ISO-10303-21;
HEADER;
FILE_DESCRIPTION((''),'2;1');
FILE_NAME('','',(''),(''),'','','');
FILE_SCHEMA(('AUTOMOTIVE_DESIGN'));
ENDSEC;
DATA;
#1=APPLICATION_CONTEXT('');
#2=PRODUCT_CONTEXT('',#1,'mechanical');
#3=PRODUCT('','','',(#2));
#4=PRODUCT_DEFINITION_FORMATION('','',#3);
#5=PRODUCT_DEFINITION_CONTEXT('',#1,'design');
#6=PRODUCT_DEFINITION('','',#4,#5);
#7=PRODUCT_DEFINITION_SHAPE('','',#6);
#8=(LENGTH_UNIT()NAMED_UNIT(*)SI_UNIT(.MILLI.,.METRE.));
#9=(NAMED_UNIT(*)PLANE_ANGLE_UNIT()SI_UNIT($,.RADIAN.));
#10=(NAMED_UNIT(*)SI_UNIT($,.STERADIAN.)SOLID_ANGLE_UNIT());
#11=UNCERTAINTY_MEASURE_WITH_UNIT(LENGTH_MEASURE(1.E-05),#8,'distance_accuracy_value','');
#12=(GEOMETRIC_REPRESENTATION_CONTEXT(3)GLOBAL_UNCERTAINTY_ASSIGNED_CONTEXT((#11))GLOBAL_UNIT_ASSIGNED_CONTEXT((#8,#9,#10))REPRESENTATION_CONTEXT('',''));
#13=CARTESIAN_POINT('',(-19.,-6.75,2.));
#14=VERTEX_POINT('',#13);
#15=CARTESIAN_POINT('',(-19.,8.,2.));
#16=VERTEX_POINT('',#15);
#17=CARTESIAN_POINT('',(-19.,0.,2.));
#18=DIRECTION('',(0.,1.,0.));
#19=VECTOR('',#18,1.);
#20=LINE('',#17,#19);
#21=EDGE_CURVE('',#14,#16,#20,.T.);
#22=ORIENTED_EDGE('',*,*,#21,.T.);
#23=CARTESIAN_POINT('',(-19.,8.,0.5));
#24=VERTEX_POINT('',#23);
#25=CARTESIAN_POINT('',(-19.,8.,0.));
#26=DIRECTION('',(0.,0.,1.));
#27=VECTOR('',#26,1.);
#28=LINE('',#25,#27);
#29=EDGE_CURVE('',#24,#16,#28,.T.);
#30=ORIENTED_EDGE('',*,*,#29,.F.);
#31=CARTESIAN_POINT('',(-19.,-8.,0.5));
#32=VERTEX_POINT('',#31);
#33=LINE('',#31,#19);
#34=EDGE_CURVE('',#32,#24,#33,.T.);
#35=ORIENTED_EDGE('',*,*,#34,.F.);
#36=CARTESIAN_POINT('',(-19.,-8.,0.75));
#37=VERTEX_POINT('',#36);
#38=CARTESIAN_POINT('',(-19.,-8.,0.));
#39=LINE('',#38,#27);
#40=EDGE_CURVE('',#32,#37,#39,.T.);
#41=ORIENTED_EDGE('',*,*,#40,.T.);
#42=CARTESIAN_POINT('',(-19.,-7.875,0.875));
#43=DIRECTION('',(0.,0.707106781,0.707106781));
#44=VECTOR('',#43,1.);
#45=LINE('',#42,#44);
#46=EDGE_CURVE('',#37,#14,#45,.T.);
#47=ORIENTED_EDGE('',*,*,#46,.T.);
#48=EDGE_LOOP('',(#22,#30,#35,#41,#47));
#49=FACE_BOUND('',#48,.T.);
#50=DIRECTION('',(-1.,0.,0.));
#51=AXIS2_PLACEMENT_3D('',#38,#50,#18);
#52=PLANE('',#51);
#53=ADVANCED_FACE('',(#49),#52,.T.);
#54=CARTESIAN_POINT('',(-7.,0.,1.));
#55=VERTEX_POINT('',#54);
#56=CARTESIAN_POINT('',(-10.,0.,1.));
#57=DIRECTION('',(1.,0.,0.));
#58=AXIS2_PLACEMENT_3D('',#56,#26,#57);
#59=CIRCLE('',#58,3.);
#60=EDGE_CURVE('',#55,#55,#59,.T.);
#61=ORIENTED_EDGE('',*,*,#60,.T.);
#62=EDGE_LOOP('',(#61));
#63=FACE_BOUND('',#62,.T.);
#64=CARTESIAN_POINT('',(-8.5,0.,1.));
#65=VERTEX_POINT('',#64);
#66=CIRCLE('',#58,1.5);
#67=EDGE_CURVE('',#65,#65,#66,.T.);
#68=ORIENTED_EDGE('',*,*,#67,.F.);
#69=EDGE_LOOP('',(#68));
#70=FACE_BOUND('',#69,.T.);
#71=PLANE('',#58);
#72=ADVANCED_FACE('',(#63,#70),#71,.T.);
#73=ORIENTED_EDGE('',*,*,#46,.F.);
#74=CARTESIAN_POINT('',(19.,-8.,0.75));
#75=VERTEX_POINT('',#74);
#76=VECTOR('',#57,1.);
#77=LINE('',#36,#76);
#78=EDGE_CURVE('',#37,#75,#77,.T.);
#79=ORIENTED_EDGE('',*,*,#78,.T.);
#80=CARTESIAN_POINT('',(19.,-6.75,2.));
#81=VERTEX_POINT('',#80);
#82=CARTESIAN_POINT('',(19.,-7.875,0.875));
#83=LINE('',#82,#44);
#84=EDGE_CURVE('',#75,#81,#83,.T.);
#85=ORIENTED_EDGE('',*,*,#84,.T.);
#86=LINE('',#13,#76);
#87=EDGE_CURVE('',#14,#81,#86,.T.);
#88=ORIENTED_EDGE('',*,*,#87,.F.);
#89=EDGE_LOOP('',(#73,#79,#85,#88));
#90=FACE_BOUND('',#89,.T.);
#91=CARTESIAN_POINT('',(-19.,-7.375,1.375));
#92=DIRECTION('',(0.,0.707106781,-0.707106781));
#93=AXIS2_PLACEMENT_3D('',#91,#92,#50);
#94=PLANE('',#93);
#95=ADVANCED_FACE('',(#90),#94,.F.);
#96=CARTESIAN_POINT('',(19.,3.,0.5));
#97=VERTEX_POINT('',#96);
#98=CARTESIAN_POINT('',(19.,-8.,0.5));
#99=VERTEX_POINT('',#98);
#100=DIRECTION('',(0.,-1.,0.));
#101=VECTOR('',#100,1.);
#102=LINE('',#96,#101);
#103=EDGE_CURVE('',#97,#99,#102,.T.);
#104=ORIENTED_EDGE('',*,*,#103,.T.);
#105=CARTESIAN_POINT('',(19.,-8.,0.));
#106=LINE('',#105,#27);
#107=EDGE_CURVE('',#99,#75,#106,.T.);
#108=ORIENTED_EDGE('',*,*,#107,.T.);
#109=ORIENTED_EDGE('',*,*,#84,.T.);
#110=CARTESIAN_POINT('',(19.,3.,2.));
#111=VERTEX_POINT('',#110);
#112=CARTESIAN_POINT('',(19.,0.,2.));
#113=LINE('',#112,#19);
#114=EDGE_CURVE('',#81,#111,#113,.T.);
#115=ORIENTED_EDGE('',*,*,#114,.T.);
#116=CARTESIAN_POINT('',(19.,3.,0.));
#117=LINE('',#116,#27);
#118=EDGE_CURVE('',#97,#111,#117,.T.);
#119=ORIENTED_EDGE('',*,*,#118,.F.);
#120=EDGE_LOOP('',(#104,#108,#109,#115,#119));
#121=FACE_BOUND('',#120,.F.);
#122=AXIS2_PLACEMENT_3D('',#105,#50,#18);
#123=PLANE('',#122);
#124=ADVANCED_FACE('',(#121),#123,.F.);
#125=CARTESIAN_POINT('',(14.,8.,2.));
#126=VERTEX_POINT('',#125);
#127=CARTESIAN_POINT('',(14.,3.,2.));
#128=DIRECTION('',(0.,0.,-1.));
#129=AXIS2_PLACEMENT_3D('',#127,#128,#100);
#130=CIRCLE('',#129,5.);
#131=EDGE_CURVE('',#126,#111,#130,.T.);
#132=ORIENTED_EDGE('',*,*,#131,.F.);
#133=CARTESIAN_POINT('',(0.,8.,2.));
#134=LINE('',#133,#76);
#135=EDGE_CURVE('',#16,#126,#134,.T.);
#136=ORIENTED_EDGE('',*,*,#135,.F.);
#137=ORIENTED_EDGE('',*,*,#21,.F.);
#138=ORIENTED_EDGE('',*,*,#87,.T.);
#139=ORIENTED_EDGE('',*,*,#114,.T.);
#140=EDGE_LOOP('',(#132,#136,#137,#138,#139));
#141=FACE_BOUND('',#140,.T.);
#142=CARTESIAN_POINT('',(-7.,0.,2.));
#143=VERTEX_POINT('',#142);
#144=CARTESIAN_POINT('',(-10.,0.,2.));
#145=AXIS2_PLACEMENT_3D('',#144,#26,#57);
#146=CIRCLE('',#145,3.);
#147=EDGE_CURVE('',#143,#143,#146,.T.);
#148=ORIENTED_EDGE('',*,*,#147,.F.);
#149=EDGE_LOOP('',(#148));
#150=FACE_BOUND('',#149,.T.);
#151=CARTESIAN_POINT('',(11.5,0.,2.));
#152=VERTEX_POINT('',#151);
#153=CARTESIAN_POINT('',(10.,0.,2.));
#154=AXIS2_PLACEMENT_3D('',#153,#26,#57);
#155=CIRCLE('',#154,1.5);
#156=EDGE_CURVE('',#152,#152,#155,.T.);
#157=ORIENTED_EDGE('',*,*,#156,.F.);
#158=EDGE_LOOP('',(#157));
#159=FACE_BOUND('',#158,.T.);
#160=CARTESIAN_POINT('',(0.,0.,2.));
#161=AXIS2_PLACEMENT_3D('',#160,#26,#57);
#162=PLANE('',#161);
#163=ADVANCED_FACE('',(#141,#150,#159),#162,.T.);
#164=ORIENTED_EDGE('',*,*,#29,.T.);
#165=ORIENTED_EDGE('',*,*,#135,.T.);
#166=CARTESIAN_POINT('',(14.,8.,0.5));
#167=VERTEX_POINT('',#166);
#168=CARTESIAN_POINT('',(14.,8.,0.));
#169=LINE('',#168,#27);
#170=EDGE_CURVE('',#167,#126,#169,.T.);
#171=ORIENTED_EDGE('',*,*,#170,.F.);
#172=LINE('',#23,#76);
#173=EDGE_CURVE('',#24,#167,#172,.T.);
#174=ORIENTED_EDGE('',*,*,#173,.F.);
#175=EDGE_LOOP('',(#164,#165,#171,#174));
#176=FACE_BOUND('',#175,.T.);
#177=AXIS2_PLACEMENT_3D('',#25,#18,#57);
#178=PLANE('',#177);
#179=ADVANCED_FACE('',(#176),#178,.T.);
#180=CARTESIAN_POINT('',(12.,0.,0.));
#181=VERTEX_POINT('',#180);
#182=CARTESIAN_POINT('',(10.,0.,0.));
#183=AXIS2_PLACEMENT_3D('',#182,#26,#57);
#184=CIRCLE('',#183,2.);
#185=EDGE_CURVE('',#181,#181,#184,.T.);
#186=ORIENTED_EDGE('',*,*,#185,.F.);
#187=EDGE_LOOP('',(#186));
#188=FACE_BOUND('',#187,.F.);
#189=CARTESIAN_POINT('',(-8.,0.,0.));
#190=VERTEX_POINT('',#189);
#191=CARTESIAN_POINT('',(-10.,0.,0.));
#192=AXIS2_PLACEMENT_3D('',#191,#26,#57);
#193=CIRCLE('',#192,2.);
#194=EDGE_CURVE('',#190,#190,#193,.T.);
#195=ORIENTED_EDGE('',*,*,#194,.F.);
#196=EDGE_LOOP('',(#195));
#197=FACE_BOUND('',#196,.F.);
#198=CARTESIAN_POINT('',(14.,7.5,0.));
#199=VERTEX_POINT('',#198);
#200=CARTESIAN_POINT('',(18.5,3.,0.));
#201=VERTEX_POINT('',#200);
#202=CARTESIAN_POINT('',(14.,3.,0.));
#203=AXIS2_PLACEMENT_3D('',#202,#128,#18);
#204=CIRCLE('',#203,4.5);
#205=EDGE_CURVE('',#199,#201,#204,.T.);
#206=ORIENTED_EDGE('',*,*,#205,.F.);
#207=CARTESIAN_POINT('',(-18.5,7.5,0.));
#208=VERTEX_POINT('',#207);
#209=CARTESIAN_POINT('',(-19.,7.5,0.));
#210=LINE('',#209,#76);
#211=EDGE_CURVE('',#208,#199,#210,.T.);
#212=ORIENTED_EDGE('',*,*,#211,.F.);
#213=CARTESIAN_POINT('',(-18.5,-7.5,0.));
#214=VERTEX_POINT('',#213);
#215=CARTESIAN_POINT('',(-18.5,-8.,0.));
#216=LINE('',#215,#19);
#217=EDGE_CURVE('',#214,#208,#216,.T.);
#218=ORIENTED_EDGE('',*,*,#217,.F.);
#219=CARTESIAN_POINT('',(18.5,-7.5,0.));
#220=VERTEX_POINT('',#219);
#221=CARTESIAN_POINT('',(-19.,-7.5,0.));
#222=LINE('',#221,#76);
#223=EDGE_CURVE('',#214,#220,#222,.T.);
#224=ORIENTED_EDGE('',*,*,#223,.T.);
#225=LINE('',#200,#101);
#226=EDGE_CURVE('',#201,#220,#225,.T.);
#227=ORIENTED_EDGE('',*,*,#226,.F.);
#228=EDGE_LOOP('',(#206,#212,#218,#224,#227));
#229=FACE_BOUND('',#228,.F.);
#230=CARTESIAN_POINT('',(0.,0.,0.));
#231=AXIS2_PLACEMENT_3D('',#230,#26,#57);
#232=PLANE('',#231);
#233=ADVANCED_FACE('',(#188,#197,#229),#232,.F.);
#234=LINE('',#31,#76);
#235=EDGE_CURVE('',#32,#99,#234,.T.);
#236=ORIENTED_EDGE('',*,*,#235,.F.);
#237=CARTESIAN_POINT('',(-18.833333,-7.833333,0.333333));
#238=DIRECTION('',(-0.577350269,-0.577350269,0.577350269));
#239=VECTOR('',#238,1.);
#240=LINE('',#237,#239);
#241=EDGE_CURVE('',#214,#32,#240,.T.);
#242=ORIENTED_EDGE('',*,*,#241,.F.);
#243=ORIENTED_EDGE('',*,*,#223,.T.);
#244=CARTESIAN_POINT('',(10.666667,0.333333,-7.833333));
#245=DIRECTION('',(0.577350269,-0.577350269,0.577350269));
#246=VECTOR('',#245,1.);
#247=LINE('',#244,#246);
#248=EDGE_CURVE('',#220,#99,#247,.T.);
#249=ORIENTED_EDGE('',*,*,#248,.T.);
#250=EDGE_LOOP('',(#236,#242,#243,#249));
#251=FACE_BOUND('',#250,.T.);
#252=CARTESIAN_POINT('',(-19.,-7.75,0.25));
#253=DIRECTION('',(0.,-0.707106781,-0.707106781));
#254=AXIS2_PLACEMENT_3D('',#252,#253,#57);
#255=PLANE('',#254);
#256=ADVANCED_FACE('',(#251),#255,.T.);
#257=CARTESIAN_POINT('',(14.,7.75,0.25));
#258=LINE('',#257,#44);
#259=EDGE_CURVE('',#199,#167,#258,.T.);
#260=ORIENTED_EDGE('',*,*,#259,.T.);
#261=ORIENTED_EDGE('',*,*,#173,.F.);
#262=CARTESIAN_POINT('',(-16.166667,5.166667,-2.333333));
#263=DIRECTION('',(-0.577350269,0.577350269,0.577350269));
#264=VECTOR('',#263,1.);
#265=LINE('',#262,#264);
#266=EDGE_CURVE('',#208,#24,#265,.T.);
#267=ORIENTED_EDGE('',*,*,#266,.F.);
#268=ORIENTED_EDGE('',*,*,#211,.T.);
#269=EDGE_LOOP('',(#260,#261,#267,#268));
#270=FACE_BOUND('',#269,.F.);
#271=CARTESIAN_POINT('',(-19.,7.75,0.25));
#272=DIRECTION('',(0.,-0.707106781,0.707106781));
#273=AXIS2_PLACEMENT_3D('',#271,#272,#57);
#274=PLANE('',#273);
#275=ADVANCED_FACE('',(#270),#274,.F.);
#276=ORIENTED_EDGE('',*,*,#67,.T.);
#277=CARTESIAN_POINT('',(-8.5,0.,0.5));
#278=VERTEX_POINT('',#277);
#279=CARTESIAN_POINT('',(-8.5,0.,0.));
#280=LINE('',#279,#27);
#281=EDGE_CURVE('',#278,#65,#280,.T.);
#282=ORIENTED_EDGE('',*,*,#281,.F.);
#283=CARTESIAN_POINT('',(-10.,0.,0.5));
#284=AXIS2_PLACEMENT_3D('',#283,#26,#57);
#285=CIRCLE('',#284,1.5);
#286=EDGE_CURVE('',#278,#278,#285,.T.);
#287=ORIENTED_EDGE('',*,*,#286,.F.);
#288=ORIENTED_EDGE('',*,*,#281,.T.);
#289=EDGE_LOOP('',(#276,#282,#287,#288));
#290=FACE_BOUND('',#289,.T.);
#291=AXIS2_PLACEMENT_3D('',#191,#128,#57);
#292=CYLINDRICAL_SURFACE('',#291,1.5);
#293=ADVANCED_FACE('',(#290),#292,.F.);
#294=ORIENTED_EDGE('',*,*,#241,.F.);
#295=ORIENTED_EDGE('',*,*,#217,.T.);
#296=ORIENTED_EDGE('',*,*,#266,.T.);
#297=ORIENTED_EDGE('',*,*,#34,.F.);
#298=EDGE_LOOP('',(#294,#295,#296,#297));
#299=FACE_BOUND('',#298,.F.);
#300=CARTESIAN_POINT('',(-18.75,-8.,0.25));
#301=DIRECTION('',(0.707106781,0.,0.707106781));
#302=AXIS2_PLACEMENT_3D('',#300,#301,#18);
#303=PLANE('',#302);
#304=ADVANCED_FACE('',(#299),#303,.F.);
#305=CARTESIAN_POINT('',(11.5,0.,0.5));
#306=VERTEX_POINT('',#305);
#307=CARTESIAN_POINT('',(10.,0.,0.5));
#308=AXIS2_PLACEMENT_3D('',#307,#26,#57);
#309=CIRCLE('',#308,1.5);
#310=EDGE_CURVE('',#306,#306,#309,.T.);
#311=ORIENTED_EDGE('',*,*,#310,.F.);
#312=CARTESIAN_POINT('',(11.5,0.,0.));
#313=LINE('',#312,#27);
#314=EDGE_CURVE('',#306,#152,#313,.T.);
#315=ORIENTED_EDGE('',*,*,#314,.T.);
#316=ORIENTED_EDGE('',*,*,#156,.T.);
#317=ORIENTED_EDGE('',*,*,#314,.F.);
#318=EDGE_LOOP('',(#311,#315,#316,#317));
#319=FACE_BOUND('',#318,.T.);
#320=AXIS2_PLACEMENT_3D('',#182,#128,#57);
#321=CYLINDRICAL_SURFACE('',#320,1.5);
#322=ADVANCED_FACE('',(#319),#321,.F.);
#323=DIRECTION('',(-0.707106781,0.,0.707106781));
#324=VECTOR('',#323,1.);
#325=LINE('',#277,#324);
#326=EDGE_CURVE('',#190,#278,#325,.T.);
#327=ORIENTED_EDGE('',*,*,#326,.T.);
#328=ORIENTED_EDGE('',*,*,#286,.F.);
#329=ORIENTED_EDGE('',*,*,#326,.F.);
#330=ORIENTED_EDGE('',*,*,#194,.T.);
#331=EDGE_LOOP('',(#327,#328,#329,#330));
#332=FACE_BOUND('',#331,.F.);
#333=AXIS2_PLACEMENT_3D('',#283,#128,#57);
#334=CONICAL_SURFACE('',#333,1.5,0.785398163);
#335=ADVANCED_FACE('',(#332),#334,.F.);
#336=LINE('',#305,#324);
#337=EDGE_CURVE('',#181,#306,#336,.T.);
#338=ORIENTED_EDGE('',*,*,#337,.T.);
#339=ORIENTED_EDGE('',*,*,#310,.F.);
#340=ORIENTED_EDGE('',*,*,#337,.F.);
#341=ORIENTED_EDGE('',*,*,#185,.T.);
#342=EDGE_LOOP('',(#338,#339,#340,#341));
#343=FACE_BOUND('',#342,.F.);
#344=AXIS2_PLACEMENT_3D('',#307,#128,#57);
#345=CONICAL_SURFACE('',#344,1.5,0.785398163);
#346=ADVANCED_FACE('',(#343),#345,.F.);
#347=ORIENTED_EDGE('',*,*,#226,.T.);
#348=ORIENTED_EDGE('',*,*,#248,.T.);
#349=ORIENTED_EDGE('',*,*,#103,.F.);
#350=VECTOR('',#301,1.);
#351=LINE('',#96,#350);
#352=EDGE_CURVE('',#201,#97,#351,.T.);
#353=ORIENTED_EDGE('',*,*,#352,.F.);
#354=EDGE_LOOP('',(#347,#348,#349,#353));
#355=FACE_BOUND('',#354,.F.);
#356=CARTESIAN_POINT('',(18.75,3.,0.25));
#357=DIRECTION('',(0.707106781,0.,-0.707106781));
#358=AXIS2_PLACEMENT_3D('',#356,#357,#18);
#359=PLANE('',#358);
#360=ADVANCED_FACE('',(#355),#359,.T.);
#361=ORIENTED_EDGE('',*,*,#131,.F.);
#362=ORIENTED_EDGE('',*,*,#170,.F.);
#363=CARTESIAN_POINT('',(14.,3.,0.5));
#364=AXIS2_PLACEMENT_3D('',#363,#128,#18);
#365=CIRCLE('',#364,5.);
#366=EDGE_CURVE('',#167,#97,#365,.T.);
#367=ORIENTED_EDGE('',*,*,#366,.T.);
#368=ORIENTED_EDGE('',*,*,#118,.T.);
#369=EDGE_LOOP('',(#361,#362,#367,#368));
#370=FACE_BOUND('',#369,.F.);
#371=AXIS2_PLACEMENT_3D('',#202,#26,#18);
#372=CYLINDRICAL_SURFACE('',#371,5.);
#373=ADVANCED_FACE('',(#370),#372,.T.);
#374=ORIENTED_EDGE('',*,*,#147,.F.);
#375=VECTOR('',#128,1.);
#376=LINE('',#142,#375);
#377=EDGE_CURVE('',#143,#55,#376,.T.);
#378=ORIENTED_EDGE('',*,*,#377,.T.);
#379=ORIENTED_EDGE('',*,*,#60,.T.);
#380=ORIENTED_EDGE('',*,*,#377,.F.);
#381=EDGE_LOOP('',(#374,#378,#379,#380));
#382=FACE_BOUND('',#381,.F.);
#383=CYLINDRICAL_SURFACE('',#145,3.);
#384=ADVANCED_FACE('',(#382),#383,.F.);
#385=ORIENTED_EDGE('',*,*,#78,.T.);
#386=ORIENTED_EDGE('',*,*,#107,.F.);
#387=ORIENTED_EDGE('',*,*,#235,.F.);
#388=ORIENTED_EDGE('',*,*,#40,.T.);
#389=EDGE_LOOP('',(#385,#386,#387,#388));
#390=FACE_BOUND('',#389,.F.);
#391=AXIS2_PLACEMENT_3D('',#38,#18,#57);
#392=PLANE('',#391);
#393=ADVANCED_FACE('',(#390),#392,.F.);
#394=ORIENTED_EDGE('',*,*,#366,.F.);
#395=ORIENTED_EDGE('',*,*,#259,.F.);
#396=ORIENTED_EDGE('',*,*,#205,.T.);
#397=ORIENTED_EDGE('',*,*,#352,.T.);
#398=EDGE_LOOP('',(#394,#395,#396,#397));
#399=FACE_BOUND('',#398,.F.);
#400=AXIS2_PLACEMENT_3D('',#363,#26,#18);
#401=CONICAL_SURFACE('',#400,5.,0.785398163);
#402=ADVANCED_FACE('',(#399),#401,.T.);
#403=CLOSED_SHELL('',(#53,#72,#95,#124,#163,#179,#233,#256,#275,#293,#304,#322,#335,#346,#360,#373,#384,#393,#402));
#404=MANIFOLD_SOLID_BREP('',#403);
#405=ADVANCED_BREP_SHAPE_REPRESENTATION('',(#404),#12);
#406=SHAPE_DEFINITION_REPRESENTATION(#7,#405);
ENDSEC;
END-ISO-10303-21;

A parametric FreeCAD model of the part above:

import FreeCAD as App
import Part
import Sketcher

V = App.Vector
Q = App.Units.Quantity


def edges_at(feature, points):
    """Names of the edges that pass closest to the given points."""
    edges = feature.Shape.Edges
    near = lambda p: min(range(len(edges)), key=lambda i: edges[i].distToShape(Part.Vertex(*p))[0])
    return sorted({f"Edge{near(p) + 1}" for p in points})

doc = App.newDocument("Part")
body = doc.addObject("PartDesign::Body", "Body")

sketch1 = body.newObject("Sketcher::SketchObject", "Sketch")
sketch1.AttachmentSupport = (doc.getObject("XY_Plane"), [""])
sketch1.MapMode = "FlatFace"
sketch1.addGeometry([
    Part.LineSegment(V(-19, 8, 0), V(-19, -8, 0)),
    Part.LineSegment(V(-19, -8, 0), V(19, -8, 0)),
    Part.LineSegment(V(19, -8, 0), V(19, 8, 0)),
    Part.LineSegment(V(19, 8, 0), V(-19, 8, 0)),
    Part.Circle(V(-10, 0, 0), V(0, 0, 1), 1.5),
    Part.Circle(V(10, 0, 0), V(0, 0, 1), 1.5),
], False)
sketch1.addConstraint([
    Sketcher.Constraint("Coincident", 0, 2, 1, 1),
    Sketcher.Constraint("Coincident", 1, 2, 2, 1),
    Sketcher.Constraint("Coincident", 2, 2, 3, 1),
    Sketcher.Constraint("Coincident", 3, 2, 0, 1),
    Sketcher.Constraint("Vertical", 0),
    Sketcher.Constraint("Horizontal", 1),
    Sketcher.Constraint("Vertical", 2),
    Sketcher.Constraint("Horizontal", 3),
    Sketcher.Constraint("Equal", 4, 5),
    Sketcher.Constraint("Symmetric", 4, 3, 5, 3, -1, 1),
    Sketcher.Constraint("Symmetric", 0, 2, 2, 2, -1, 1),
    Sketcher.Constraint("PointOnObject", 4, 3, -1),
    Sketcher.Constraint("Diameter", 4, Q("3 mm")),
    Sketcher.Constraint("DistanceX", 1, 1, 1, 2, Q("38 mm")),
    Sketcher.Constraint("DistanceY", 0, 2, 0, 1, Q("16 mm")),
    Sketcher.Constraint("DistanceX", 4, 3, -1, 1, Q("10 mm")),
])
pad1 = body.newObject("PartDesign::Pad", "Pad")
pad1.Profile = sketch1
pad1.Length = 2
doc.recompute()

chamfer = body.newObject("PartDesign::Chamfer", "Chamfer")
chamfer.Base = (pad1, edges_at(pad1, [(0, -8, 2)]))
chamfer.Size = 1.25
doc.recompute()

fillet = body.newObject("PartDesign::Fillet", "Fillet")
fillet.Base = (chamfer, edges_at(chamfer, [(19, 8, 1)]))
fillet.Radius = 5

sketch2 = body.newObject("Sketcher::SketchObject", "Sketch001")
sketch2.AttachmentSupport = (doc.getObject("XY_Plane"), [""])
sketch2.MapMode = "FlatFace"
sketch2.AttachmentOffset = App.Placement(V(0, 0, 2), App.Rotation())
sketch2.addGeometry([
    Part.Circle(V(-10, 0, 0), V(0, 0, 1), 3),
    Part.Circle(V(-10, 0, 0), V(0, 0, 1), 1.5),
], False)
sketch2.addConstraint([
    Sketcher.Constraint("Coincident", 1, 3, 0, 3),
    Sketcher.Constraint("PointOnObject", 0, 3, -1),
    Sketcher.Constraint("Diameter", 0, Q("6 mm")),
    Sketcher.Constraint("Diameter", 1, Q("3 mm")),
    Sketcher.Constraint("DistanceX", 0, 3, -1, 1, Q("10 mm")),
])
pocket1 = body.newObject("PartDesign::Pocket", "Pocket")
pocket1.Profile = sketch2
pocket1.Length = 1
doc.recompute()

chamfer2 = body.newObject("PartDesign::Chamfer", "Chamfer001")
chamfer2.Base = (pocket1, edges_at(pocket1, [
    (-2.5, 8, 0),
    (17.536, 6.536, 0),
    (-19, 0, 0),
    (19, -2.5, 0),
    (0, -8, 0),
    (-11.5, 0, 0),
    (8.5, 0, 0),
]))
chamfer2.Size = 0.5

doc.recompute()
